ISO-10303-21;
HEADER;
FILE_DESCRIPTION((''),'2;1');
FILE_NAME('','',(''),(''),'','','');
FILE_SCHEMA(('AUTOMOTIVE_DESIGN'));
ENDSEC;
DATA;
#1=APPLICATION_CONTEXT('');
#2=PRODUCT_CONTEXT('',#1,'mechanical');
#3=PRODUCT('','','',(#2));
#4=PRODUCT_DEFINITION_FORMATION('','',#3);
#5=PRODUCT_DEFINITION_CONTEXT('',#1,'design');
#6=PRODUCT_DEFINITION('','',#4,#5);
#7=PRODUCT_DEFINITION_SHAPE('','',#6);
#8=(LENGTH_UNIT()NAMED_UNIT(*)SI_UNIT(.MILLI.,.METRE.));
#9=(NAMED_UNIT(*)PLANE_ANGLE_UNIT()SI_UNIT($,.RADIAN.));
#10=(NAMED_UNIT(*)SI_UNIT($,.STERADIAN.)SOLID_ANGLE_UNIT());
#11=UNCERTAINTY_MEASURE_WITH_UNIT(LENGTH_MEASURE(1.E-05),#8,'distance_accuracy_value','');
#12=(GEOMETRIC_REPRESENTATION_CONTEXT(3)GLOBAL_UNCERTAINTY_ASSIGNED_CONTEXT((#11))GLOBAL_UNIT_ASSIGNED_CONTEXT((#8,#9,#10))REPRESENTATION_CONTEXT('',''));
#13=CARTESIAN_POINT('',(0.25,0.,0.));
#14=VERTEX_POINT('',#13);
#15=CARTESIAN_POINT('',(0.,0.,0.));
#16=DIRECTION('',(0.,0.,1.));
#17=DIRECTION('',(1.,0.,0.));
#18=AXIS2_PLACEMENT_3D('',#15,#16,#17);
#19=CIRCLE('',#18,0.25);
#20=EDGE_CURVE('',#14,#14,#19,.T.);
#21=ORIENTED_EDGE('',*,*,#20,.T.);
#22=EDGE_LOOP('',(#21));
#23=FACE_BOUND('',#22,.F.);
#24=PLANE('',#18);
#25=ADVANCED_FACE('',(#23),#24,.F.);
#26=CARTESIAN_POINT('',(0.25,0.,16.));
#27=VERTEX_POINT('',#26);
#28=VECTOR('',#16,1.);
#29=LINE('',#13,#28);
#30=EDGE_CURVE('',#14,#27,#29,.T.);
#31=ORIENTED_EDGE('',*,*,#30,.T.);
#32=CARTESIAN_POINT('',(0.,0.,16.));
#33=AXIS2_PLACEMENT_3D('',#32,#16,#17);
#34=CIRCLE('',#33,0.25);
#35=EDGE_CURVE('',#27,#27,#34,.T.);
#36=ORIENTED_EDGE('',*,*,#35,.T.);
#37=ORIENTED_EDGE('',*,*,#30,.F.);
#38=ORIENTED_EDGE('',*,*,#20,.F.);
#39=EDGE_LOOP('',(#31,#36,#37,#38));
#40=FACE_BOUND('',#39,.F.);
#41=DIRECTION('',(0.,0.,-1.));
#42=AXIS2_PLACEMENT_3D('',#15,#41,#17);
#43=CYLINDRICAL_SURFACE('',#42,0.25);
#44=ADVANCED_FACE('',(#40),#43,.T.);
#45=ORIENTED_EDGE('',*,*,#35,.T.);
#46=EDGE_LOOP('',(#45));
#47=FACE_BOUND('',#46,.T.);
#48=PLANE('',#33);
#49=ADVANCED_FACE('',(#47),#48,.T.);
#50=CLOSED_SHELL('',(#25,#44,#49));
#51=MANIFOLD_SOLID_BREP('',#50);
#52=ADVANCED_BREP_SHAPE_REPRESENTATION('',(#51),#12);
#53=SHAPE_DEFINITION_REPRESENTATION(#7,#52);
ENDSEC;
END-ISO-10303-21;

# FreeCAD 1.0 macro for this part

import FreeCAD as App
import Part
import Sketcher
from FreeCAD import Vector
Q = App.Units.Quantity

doc = App.newDocument("Part")
body = doc.addObject("PartDesign::Body", "Body")

sketch1 = doc.addObject("Sketcher::SketchObject", "Sketch")
body.addObject(sketch1)
sketch1.AttachmentSupport = (doc.XY_Plane, [""])
sketch1.MapMode = "FlatFace"
sketch1.addGeometry(Part.Circle(Vector(0, 0, 0), Vector(0, 0, 1), 0.25), False)
sketch1.addConstraint([
    Sketcher.Constraint("Coincident", 0, 3, -1, 1),
    Sketcher.Constraint("Diameter", 0, Q("0.5 mm")),
])
pad1 = doc.addObject("PartDesign::Pad", "Pad")
body.addObject(pad1)
pad1.Profile = sketch1
pad1.Length = 16

doc.recompute()
